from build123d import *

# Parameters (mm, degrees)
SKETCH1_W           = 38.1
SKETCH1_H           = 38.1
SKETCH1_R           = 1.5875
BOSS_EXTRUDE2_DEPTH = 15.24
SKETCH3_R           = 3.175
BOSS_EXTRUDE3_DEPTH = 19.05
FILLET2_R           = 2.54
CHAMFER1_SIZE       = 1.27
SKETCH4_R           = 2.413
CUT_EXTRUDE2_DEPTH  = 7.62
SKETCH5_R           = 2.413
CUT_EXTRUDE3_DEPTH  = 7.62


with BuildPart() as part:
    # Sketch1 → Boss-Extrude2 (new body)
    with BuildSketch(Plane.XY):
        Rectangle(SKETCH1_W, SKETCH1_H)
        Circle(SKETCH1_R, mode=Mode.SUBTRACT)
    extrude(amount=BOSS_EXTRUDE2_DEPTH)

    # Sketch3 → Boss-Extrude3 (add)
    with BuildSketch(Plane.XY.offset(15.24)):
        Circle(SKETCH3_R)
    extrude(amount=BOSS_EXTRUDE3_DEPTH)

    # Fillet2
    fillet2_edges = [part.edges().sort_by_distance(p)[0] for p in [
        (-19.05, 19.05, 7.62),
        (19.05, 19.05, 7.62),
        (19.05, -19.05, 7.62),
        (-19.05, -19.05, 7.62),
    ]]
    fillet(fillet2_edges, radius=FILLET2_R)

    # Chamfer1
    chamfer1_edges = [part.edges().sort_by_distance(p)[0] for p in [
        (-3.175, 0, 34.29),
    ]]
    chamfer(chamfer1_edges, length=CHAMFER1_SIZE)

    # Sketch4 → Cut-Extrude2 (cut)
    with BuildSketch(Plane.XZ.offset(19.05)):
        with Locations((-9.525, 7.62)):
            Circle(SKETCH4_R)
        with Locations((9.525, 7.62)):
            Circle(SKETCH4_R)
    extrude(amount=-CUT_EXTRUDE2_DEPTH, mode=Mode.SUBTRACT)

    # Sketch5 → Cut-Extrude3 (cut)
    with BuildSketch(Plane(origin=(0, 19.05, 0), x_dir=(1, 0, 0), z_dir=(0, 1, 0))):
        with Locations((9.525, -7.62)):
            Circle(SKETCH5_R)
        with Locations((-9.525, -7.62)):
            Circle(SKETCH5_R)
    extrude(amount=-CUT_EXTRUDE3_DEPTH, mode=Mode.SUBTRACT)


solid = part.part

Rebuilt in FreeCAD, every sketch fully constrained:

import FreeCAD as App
import Part
import Sketcher
from FreeCAD import Vector
Q = App.Units.Quantity


def edges_at(feature, points):
    """Names of the edges that pass closest to the given points."""
    edges = feature.Shape.Edges
    near = lambda p: min(range(len(edges)), key=lambda i: edges[i].distToShape(Part.Vertex(*p))[0])
    return sorted({f"Edge{near(p) + 1}" for p in points})

doc = App.newDocument("Part")
body = doc.addObject("PartDesign::Body", "Body")

sketch1 = body.newObject("Sketcher::SketchObject", "Sketch")
sketch1.AttachmentSupport = (doc.getObject("XY_Plane"), [""])
sketch1.MapMode = "FlatFace"
sketch1.addGeometry([
    Part.LineSegment(Vector(-19.1, 19.1, 0), Vector(-19.1, -19.1, 0)),
    Part.LineSegment(Vector(-19.1, -19.1, 0), Vector(19.1, -19.1, 0)),
    Part.LineSegment(Vector(19.1, -19.1, 0), Vector(19.1, 19.1, 0)),
    Part.LineSegment(Vector(19.1, 19.1, 0), Vector(-19.1, 19.1, 0)),
    Part.Circle(Vector(0, 0, 0), Vector(0, 0, 1), 1.6),
], False)
sketch1.addConstraint([
    Sketcher.Constraint("Coincident", 0, 2, 1, 1),
    Sketcher.Constraint("Coincident", 1, 2, 2, 1),
    Sketcher.Constraint("Coincident", 2, 2, 3, 1),
    Sketcher.Constraint("Coincident", 3, 2, 0, 1),
    Sketcher.Constraint("Vertical", 0),
    Sketcher.Constraint("Horizontal", 1),
    Sketcher.Constraint("Vertical", 2),
    Sketcher.Constraint("Horizontal", 3),
    Sketcher.Constraint("Coincident", 4, 3, -1, 1),
    Sketcher.Constraint("Symmetric", 0, 2, 2, 2, -1, 1),
    Sketcher.Constraint("Equal", 3, 0),
    Sketcher.Constraint("Diameter", 4, Q("0.125 in")),
    Sketcher.Constraint("DistanceX", 1, 1, 1, 2, Q("1.5 in")),
])
pad1 = body.newObject("PartDesign::Pad", "Pad")
pad1.Profile = sketch1
pad1.Length = Q("0.6 in")

sketch2 = body.newObject("Sketcher::SketchObject", "Sketch001")
sketch2.AttachmentSupport = (doc.getObject("XY_Plane"), [""])
sketch2.MapMode = "FlatFace"
sketch2.AttachmentOffset = App.Placement(Vector(0, 0, 0.6 * 25.4), App.Rotation())
sketch2.addGeometry(Part.Circle(Vector(0, 0, 0), Vector(0, 0, 1), 3.2), False)
sketch2.addConstraint([
    Sketcher.Constraint("Coincident", 0, 3, -1, 1),
    Sketcher.Constraint("Diameter", 0, Q("0.25 in")),
])
pad2 = body.newObject("PartDesign::Pad", "Pad001")
pad2.Profile = sketch2
pad2.Length = Q("0.75 in")
doc.recompute()

fillet = body.newObject("PartDesign::Fillet", "Fillet")
fillet.Base = (pad2, edges_at(pad2, [
    (-19.05, 19.05, 7.62),
    (19.05, 19.05, 7.62),
    (19.05, -19.05, 7.62),
    (-19.05, -19.05, 7.62),
]))
fillet.Radius = Q("0.1 in")
doc.recompute()

chamfer = body.newObject("PartDesign::Chamfer", "Chamfer")
chamfer.Base = (fillet, edges_at(fillet, [(-3.175, 0, 34.29)]))
chamfer.Size = Q("0.05 in")

sketch3 = body.newObject("Sketcher::SketchObject", "Sketch002")
sketch3.AttachmentSupport = (doc.getObject("XZ_Plane"), [""])
sketch3.MapMode = "FlatFace"
sketch3.AttachmentOffset = App.Placement(Vector(0, 0, 0.75 * 25.4), App.Rotation())
sketch3.addGeometry([
    Part.Circle(Vector(-9.5, 7.6, 0), Vector(0, 0, 1), 2.4),
    Part.Circle(Vector(9.5, 7.6, 0), Vector(0, 0, 1), 2.4),
], False)
sketch3.addConstraint([
    Sketcher.Constraint("Equal", 0, 1),
    Sketcher.Constraint("Symmetric", 0, 3, 1, 3, -2),
    Sketcher.Constraint("Diameter", 0, Q("0.19 in")),
    Sketcher.Constraint("DistanceY", -1, 1, 0, 3, Q("0.3 in")),
    Sketcher.Constraint("DistanceX", 0, 3, 1, 3, Q("0.75 in")),
])
pocket1 = body.newObject("PartDesign::Pocket", "Pocket")
pocket1.Profile = sketch3
pocket1.Length = Q("0.3 in")

sketch4 = body.newObject("Sketcher::SketchObject", "Sketch003")
sketch4.AttachmentSupport = (doc.getObject("XZ_Plane"), [""])
sketch4.MapMode = "FlatFace"
sketch4.AttachmentOffset = App.Placement(Vector(0, 0, -0.75 * 25.4), App.Rotation())
sketch4.addGeometry([
    Part.Circle(Vector(9.5, 7.6, 0), Vector(0, 0, 1), 2.4),
    Part.Circle(Vector(-9.5, 7.6, 0), Vector(0, 0, 1), 2.4),
], False)
sketch4.addConstraint([
    Sketcher.Constraint("Equal", 0, 1),
    Sketcher.Constraint("Symmetric", 0, 3, 1, 3, -2),
    Sketcher.Constraint("Diameter", 0, Q("0.19 in")),
    Sketcher.Constraint("DistanceY", -1, 1, 0, 3, Q("0.3 in")),
    Sketcher.Constraint("DistanceX", 1, 3, 0, 3, Q("0.75 in")),
])
pocket2 = body.newObject("PartDesign::Pocket", "Pocket001")
pocket2.Profile = sketch4
pocket2.Length = Q("0.3 in")
pocket2.Reversed = True

doc.recompute()
